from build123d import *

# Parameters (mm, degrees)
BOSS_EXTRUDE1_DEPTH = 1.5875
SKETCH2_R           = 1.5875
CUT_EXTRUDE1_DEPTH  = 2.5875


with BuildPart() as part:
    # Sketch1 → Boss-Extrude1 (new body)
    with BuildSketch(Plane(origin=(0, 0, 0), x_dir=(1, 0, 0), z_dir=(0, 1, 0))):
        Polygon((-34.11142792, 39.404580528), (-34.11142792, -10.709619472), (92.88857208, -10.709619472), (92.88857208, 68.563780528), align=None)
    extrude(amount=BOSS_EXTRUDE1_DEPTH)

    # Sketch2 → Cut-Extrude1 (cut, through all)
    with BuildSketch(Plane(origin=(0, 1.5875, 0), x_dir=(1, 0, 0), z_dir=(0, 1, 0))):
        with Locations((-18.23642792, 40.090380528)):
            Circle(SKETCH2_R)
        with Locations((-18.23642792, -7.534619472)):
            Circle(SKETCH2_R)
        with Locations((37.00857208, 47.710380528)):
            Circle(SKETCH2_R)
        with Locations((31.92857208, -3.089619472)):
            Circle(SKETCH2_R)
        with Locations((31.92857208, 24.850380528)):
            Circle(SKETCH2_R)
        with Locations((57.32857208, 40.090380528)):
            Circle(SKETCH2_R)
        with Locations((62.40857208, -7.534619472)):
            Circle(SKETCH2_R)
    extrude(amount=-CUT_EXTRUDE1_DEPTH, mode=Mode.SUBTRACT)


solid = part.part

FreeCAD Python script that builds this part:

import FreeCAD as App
import Part
import Sketcher
from FreeCAD import Vector
Q = App.Units.Quantity


def add_polygon(sketch, points):
    """Adds a closed chain of lines whose ends are joined by coincident constraints."""
    first, n = sketch.GeometryCount, len(points)
    for a, b in zip(points, points[1:] + points[:1]):
        sketch.addGeometry(Part.LineSegment(App.Vector(*a, 0), App.Vector(*b, 0)), False)
    for i in range(n):
        sketch.addConstraint(Sketcher.Constraint("Coincident", first + i, 2, first + (i + 1) % n, 1))

doc = App.newDocument("Part")
params = doc.addObject("Spreadsheet::Sheet", "Params")
for row, (alias, value) in enumerate([
    ("sketch1_width", "5 in"),
    ("sketch1_height", "1.973 in"),
    ("sketch1_height2", "3.121 in"),
    ("pad1_length", "0.0625 in"),
    ("sketch2_diameter", "0.125 in"),
], start=1):
    params.set(f"A{row}", alias)
    params.set(f"B{row}", "=" + value)
    params.setAlias(f"B{row}", alias)

body = doc.addObject("PartDesign::Body", "Body")

# Sketch on XZ plane
sketch1 = doc.addObject("Sketcher::SketchObject", "Sketch")
body.addObject(sketch1)
sketch1.AttachmentSupport = (doc.XZ_Plane, [""])
sketch1.MapMode = "FlatFace"
add_polygon(sketch1, [(-34, -39), (-34, 11), (93, 11), (93, -69)])  # lines 0-3
sketch1.addConstraint([
    Sketcher.Constraint("Vertical", 0),
    Sketcher.Constraint("Horizontal", 1),
    Sketcher.Constraint("Vertical", 2),
    Sketcher.Constraint("DistanceX", 1, 1, 1, 2, Q("5 in")),
    Sketcher.Constraint("DistanceY", 0, 1, 0, 2, Q("1.973 in")),
    Sketcher.Constraint("DistanceY", 2, 2, 2, 1, Q("3.121 in")),
    Sketcher.Constraint("DistanceY", -1, 1, 0, 2, Q("10.709619 mm")),
    Sketcher.Constraint("DistanceX", 0, 2, -1, 1, Q("34.111428 mm")),
])
sketch1.setExpression("Constraints[7]", "Params.sketch1_width")
sketch1.setExpression("Constraints[8]", "Params.sketch1_height")
sketch1.setExpression("Constraints[9]", "Params.sketch1_height2")
pad1 = doc.addObject("PartDesign::Pad", "Pad")
body.addObject(pad1)
pad1.Profile = sketch1
pad1.setExpression("Length", "Params.pad1_length")
pad1.Reversed = True

# Sketch on XZ plane
sketch2 = doc.addObject("Sketcher::SketchObject", "Sketch001")
body.addObject(sketch2)
sketch2.AttachmentSupport = (doc.XZ_Plane, [""])
sketch2.MapMode = "FlatFace"
sketch2.AttachmentOffset = App.Placement(Vector(0, 0, -0.0625 * 25.4), App.Rotation())
sketch2.addGeometry([
    Part.Circle(Vector(-18.2, -40.1, 0), Vector(0, 0, 1), 1.6),  # 0
    Part.Circle(Vector(-18.2, 7.5, 0), Vector(0, 0, 1), 1.6),  # 1
    Part.Circle(Vector(37, -47.7, 0), Vector(0, 0, 1), 1.6),  # 2
    Part.Circle(Vector(31.9, 3.1, 0), Vector(0, 0, 1), 1.6),  # 3
    Part.Circle(Vector(31.9, -24.9, 0), Vector(0, 0, 1), 1.6),  # 4
    Part.Circle(Vector(57.3, -40.1, 0), Vector(0, 0, 1), 1.6),  # 5
    Part.Circle(Vector(62.4, 7.5, 0), Vector(0, 0, 1), 1.6),  # 6
], False)
sketch2.addConstraint([
    Sketcher.Constraint("Equal", 0, 1),
    Sketcher.Constraint("Equal", 1, 2),
    Sketcher.Constraint("Equal", 2, 3),
    Sketcher.Constraint("Equal", 3, 4),
    Sketcher.Constraint("Equal", 4, 5),
    Sketcher.Constraint("Equal", 5, 6),
    Sketcher.Constraint("Horizontal", 0, 3, 5, 3),
    Sketcher.Constraint("Horizontal", 1, 3, 6, 3),
    Sketcher.Constraint("Vertical", 0, 3, 1, 3),
    Sketcher.Constraint("Vertical", 3, 3, 4, 3),
    Sketcher.Constraint("Diameter", 0, Q("0.125 in")),
    Sketcher.Constraint("DistanceY", 2, 3, 3, 3, Q("2 in")),
    Sketcher.Constraint("DistanceX", 4, 3, 5, 3, Q("1 in")),
    Sketcher.Constraint("DistanceX", 2, 3, 6, 3, Q("1 in")),
    Sketcher.Constraint("DistanceY", 2, 3, 0, 3, Q("0.3 in")),
    Sketcher.Constraint("DistanceX", 3, 3, 2, 3, Q("0.2 in")),
    Sketcher.Constraint("DistanceY", 2, 3, 4, 3, Q("0.9 in")),
    Sketcher.Constraint("DistanceY", 0, 3, 1, 3, Q("1.875 in")),
    Sketcher.Constraint("DistanceX", 0, 3, 2, 3, Q("2.175 in")),
    Sketcher.Constraint("DistanceY", 0, 3, -1, 1, Q("40.090381 mm")),
    Sketcher.Constraint("DistanceX", 0, 3, -1, 1, Q("18.236428 mm")),
])
sketch2.setExpression("Constraints[10]", "Params.sketch2_diameter")
pocket1 = doc.addObject("PartDesign::Pocket", "Pocket")
body.addObject(pocket1)
pocket1.Profile = sketch2
pocket1.Type = "ThroughAll"
pocket1.Reversed = True

doc.recompute()
